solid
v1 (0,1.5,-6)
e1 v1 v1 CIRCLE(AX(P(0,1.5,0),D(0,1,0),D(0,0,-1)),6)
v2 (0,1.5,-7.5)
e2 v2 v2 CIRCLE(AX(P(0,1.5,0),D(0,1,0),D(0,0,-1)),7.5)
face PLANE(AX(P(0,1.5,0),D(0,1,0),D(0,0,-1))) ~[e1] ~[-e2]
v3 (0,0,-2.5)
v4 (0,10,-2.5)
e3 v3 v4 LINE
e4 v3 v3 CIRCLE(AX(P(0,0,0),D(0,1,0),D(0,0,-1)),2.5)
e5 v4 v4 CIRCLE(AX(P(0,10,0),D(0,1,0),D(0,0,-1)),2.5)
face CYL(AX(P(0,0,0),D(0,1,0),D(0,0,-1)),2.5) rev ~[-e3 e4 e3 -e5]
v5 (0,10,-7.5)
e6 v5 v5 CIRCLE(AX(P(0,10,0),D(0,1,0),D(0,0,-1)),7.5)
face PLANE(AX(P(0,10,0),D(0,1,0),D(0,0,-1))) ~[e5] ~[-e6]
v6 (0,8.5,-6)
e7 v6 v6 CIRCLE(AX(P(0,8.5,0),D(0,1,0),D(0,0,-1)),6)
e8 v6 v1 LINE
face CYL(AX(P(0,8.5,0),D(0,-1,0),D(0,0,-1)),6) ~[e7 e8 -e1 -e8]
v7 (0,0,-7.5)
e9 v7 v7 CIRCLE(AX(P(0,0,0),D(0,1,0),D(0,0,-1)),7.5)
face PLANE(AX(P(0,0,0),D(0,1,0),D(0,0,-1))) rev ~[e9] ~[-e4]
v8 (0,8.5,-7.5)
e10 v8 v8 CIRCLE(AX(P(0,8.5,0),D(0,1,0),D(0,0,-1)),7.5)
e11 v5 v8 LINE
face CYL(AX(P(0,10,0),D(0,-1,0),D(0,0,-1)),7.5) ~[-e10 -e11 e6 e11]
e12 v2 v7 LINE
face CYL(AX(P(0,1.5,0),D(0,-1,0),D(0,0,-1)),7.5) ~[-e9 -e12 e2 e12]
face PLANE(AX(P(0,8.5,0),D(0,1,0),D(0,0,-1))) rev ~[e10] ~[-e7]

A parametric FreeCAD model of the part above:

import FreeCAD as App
import Part
import Sketcher

V = App.Vector
Q = App.Units.Quantity

doc = App.newDocument("Part")
body = doc.addObject("PartDesign::Body", "Body")

sketch1 = doc.addObject("Sketcher::SketchObject", "Sketch")
body.addObject(sketch1)
sketch1.AttachmentSupport = (doc.YZ_Plane, [""])
sketch1.MapMode = "FlatFace"
sketch1.addGeometry(Part.LineSegment(V(10, -2.5, 0), V(0, -2.5, 0)), False)
sketch1.addGeometry(Part.LineSegment(V(0, -2.5, 0), V(0, -7.5, 0)), False)
sketch1.addGeometry(Part.LineSegment(V(0, -7.5, 0), V(1.5, -7.5, 0)), False)
sketch1.addGeometry(Part.LineSegment(V(1.5, -7.5, 0), V(1.5, -6, 0)), False)
sketch1.addGeometry(Part.LineSegment(V(1.5, -6, 0), V(8.5, -6, 0)), False)
sketch1.addGeometry(Part.LineSegment(V(8.5, -6, 0), V(8.5, -7.5, 0)), False)
sketch1.addGeometry(Part.LineSegment(V(8.5, -7.5, 0), V(10, -7.5, 0)), False)
sketch1.addGeometry(Part.LineSegment(V(10, -7.5, 0), V(10, -2.5, 0)), False)
sketch1.addConstraint(Sketcher.Constraint("Coincident", 0, 2, 1, 1))
sketch1.addConstraint(Sketcher.Constraint("Coincident", 1, 2, 2, 1))
sketch1.addConstraint(Sketcher.Constraint("Coincident", 2, 2, 3, 1))
sketch1.addConstraint(Sketcher.Constraint("Coincident", 3, 2, 4, 1))
sketch1.addConstraint(Sketcher.Constraint("Coincident", 4, 2, 5, 1))
sketch1.addConstraint(Sketcher.Constraint("Coincident", 5, 2, 6, 1))
sketch1.addConstraint(Sketcher.Constraint("Coincident", 6, 2, 7, 1))
sketch1.addConstraint(Sketcher.Constraint("Coincident", 7, 2, 0, 1))
sketch1.addConstraint(Sketcher.Constraint("Horizontal", 0))
sketch1.addConstraint(Sketcher.Constraint("Vertical", 1))
sketch1.addConstraint(Sketcher.Constraint("Horizontal", 2))
sketch1.addConstraint(Sketcher.Constraint("Vertical", 3))
sketch1.addConstraint(Sketcher.Constraint("Horizontal", 4))
sketch1.addConstraint(Sketcher.Constraint("Vertical", 5))
sketch1.addConstraint(Sketcher.Constraint("Horizontal", 6))
sketch1.addConstraint(Sketcher.Constraint("Vertical", 7))
sketch1.addConstraint(Sketcher.Constraint("PointOnObject", 0, 2, -2))
sketch1.addConstraint(Sketcher.Constraint("Horizontal", 2, 2, 5, 2))
sketch1.addConstraint(Sketcher.Constraint("Equal", 2, 6))
sketch1.addConstraint(Sketcher.Constraint("Equal", 6, 3))
sketch1.addConstraint(Sketcher.Constraint("DistanceX", 4, 1, 4, 2, Q("7 mm")))
sketch1.addConstraint(Sketcher.Constraint("DistanceY", 1, 2, 1, 1, Q("5 mm")))
sketch1.addConstraint(Sketcher.Constraint("DistanceX", 2, 1, 2, 2, Q("1.5 mm")))
sketch1.addConstraint(Sketcher.Constraint("DistanceY", 3, 2, -1, 1, Q("6 mm")))
revolution = doc.addObject("PartDesign::Revolution", "Revolution")
body.addObject(revolution)
revolution.Profile = sketch1
revolution.ReferenceAxis = (sketch1, ["H_Axis"])
revolution.Angle = 360

doc.recompute()
